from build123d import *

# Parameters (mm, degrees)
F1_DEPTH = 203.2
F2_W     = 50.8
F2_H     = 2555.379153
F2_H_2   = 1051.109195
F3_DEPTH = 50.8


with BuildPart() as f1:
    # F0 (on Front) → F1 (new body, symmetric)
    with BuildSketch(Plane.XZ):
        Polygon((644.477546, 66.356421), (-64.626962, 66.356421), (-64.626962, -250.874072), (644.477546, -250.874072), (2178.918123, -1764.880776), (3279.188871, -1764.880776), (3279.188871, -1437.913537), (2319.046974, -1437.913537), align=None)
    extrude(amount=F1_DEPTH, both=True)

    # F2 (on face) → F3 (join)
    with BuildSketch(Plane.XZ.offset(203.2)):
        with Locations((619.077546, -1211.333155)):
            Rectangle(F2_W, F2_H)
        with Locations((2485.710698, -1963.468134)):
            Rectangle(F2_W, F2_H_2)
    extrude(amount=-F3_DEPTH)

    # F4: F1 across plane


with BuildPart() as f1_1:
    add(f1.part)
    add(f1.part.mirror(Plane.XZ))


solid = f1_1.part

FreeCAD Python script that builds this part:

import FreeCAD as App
import Part
import Sketcher
from FreeCAD import Vector
Q = App.Units.Quantity

doc = App.newDocument("Part")
params = doc.addObject("Spreadsheet::Sheet", "Params")
for row, (alias, value) in enumerate([
    ("pad1_length", "16 in"),
    ("sketch2_width", "2 in"),
    ("pad2_length", "2 in"),
], start=1):
    params.set(f"A{row}", alias)
    params.set(f"B{row}", "=" + value)
    params.setAlias(f"B{row}", alias)

body = doc.addObject("PartDesign::Body", "Body")

sketch1 = body.newObject("Sketcher::SketchObject", "Sketch")
sketch1.AttachmentSupport = (doc.getObject("XZ_Plane"), [""])
sketch1.MapMode = "FlatFace"
sketch1.addGeometry([
    Part.LineSegment(Vector(644.477546, 66.356421, 0), Vector(-64.626962, 66.356421, 0)),
    Part.LineSegment(Vector(-64.626962, 66.356421, 0), Vector(-64.626962, -250.874072, 0)),
    Part.LineSegment(Vector(-64.626962, -250.874072, 0), Vector(644.477546, -250.874072, 0)),
    Part.LineSegment(Vector(644.477546, -250.874072, 0), Vector(2178.918123, -1764.880776, 0)),
    Part.LineSegment(Vector(2178.918123, -1764.880776, 0), Vector(3279.188871, -1764.880776, 0)),
    Part.LineSegment(Vector(3279.188871, -1764.880776, 0), Vector(3279.188871, -1437.913537, 0)),
    Part.LineSegment(Vector(3279.188871, -1437.913537, 0), Vector(2319.046974, -1437.913537, 0)),
    Part.LineSegment(Vector(2319.046974, -1437.913537, 0), Vector(644.477546, 66.356421, 0)),
], False)
sketch1.addConstraint([
    Sketcher.Constraint("Coincident", 0, 2, 1, 1),
    Sketcher.Constraint("Coincident", 1, 2, 2, 1),
    Sketcher.Constraint("Coincident", 2, 2, 3, 1),
    Sketcher.Constraint("Coincident", 3, 2, 4, 1),
    Sketcher.Constraint("Coincident", 4, 2, 5, 1),
    Sketcher.Constraint("Coincident", 5, 2, 6, 1),
    Sketcher.Constraint("Coincident", 6, 2, 7, 1),
    Sketcher.Constraint("Coincident", 7, 2, 0, 1),
    Sketcher.Constraint("Horizontal", 0),
    Sketcher.Constraint("Vertical", 1),
    Sketcher.Constraint("Horizontal", 2),
    Sketcher.Constraint("Horizontal", 4),
    Sketcher.Constraint("Vertical", 5),
    Sketcher.Constraint("Horizontal", 6),
    Sketcher.Constraint("Vertical", 2, 2, 7, 2),
    Sketcher.Constraint("DistanceX", 0, 2, 0, 1, 709.104508),
    Sketcher.Constraint("DistanceX", 4, 1, 4, 2, 1100.270748),
    Sketcher.Constraint("DistanceY", 5, 1, 5, 2, 326.967239),
    Sketcher.Constraint("Distance", 3, 2155.62617),
    Sketcher.Constraint("DistanceX", 6, 2, 6, 1, 960.141897),
    Sketcher.Constraint("DistanceY", 1, 2, 1, 1, 317.230493),
    Sketcher.Constraint("DistanceY", -1, 1, 0, 2, 66.356421),
    Sketcher.Constraint("DistanceX", -1, 1, 4, 2, 3279.188871),
    Sketcher.Constraint("Distance", 7, 2251.002194),
])
pad1 = body.newObject("PartDesign::Pad", "Pad")
pad1.Profile = sketch1
pad1.setExpression("Length", "Params.pad1_length")
pad1.Midplane = True

sketch2 = body.newObject("Sketcher::SketchObject", "Sketch001")
sketch2.AttachmentSupport = (doc.getObject("XZ_Plane"), [""])
sketch2.MapMode = "FlatFace"
sketch2.AttachmentOffset = App.Placement(Vector(0, 0, 8 * 25.4), App.Rotation())
sketch2.addGeometry([
    Part.LineSegment(Vector(593.677546, 66.356421, 0), Vector(593.677546, -2489.022732, 0)),
    Part.LineSegment(Vector(593.677546, -2489.022732, 0), Vector(644.477546, -2489.022732, 0)),
    Part.LineSegment(Vector(644.477546, -2489.022732, 0), Vector(644.477546, 66.356421, 0)),
    Part.LineSegment(Vector(644.477546, 66.356421, 0), Vector(593.677546, 66.356421, 0)),
    Part.LineSegment(Vector(2460.310698, -1437.913536, 0), Vector(2460.310698, -2489.022732, 0)),
    Part.LineSegment(Vector(2460.310698, -2489.022732, 0), Vector(2511.110698, -2489.022732, 0)),
    Part.LineSegment(Vector(2511.110698, -2489.022732, 0), Vector(2511.110698, -1437.913536, 0)),
    Part.LineSegment(Vector(2511.110698, -1437.913536, 0), Vector(2460.310698, -1437.913536, 0)),
], False)
sketch2.addConstraint([
    Sketcher.Constraint("Coincident", 0, 2, 1, 1),
    Sketcher.Constraint("Coincident", 1, 2, 2, 1),
    Sketcher.Constraint("Coincident", 2, 2, 3, 1),
    Sketcher.Constraint("Coincident", 3, 2, 0, 1),
    Sketcher.Constraint("Coincident", 4, 2, 5, 1),
    Sketcher.Constraint("Coincident", 5, 2, 6, 1),
    Sketcher.Constraint("Coincident", 6, 2, 7, 1),
    Sketcher.Constraint("Coincident", 7, 2, 4, 1),
    Sketcher.Constraint("Vertical", 0),
    Sketcher.Constraint("Horizontal", 1),
    Sketcher.Constraint("Vertical", 2),
    Sketcher.Constraint("Horizontal", 3),
    Sketcher.Constraint("Vertical", 4),
    Sketcher.Constraint("Horizontal", 5),
    Sketcher.Constraint("Vertical", 6),
    Sketcher.Constraint("Horizontal", 7),
    Sketcher.Constraint("Horizontal", 1, 2, 4, 2),
    Sketcher.Constraint("Equal", 3, 5),
    Sketcher.Constraint("DistanceX", 1, 1, 1, 2, Q("2 in")),
    Sketcher.Constraint("DistanceY", 0, 2, 0, 1, 2555.379153),
    Sketcher.Constraint("DistanceY", 4, 2, 4, 1, 1051.109195),
    Sketcher.Constraint("DistanceY", 0, 2, -1, 1, 2489.022732),
    Sketcher.Constraint("DistanceX", 1, 2, 4, 2, 1815.833152),
    Sketcher.Constraint("DistanceX", -1, 1, 0, 2, 593.677546),
])
sketch2.setExpression("Constraints[18]", "Params.sketch2_width")
pad2 = body.newObject("PartDesign::Pad", "Pad001")
pad2.Profile = sketch2
pad2.setExpression("Length", "Params.pad2_length")
pad2.Reversed = True
body2 = doc.addObject("PartDesign::Body", "Body001")
doc.recompute()

body2.BaseFeature = body
doc.recompute()

mirroring = doc.addObject("Part::Mirroring", "Mirroring")
mirroring.Source = body
mirroring.Base = Vector(0, 0, 0)
mirroring.Normal = Vector(0, -1, 0)
body3 = doc.addObject("PartDesign::Body", "Body002")
body3.BaseFeature = mirroring
boolean = body2.newObject("PartDesign::Boolean", "Boolean")
boolean.Type = "Fuse"
boolean.addObjects([body3])
doc.recompute()
mirroring.Visibility = False

doc.recompute()
